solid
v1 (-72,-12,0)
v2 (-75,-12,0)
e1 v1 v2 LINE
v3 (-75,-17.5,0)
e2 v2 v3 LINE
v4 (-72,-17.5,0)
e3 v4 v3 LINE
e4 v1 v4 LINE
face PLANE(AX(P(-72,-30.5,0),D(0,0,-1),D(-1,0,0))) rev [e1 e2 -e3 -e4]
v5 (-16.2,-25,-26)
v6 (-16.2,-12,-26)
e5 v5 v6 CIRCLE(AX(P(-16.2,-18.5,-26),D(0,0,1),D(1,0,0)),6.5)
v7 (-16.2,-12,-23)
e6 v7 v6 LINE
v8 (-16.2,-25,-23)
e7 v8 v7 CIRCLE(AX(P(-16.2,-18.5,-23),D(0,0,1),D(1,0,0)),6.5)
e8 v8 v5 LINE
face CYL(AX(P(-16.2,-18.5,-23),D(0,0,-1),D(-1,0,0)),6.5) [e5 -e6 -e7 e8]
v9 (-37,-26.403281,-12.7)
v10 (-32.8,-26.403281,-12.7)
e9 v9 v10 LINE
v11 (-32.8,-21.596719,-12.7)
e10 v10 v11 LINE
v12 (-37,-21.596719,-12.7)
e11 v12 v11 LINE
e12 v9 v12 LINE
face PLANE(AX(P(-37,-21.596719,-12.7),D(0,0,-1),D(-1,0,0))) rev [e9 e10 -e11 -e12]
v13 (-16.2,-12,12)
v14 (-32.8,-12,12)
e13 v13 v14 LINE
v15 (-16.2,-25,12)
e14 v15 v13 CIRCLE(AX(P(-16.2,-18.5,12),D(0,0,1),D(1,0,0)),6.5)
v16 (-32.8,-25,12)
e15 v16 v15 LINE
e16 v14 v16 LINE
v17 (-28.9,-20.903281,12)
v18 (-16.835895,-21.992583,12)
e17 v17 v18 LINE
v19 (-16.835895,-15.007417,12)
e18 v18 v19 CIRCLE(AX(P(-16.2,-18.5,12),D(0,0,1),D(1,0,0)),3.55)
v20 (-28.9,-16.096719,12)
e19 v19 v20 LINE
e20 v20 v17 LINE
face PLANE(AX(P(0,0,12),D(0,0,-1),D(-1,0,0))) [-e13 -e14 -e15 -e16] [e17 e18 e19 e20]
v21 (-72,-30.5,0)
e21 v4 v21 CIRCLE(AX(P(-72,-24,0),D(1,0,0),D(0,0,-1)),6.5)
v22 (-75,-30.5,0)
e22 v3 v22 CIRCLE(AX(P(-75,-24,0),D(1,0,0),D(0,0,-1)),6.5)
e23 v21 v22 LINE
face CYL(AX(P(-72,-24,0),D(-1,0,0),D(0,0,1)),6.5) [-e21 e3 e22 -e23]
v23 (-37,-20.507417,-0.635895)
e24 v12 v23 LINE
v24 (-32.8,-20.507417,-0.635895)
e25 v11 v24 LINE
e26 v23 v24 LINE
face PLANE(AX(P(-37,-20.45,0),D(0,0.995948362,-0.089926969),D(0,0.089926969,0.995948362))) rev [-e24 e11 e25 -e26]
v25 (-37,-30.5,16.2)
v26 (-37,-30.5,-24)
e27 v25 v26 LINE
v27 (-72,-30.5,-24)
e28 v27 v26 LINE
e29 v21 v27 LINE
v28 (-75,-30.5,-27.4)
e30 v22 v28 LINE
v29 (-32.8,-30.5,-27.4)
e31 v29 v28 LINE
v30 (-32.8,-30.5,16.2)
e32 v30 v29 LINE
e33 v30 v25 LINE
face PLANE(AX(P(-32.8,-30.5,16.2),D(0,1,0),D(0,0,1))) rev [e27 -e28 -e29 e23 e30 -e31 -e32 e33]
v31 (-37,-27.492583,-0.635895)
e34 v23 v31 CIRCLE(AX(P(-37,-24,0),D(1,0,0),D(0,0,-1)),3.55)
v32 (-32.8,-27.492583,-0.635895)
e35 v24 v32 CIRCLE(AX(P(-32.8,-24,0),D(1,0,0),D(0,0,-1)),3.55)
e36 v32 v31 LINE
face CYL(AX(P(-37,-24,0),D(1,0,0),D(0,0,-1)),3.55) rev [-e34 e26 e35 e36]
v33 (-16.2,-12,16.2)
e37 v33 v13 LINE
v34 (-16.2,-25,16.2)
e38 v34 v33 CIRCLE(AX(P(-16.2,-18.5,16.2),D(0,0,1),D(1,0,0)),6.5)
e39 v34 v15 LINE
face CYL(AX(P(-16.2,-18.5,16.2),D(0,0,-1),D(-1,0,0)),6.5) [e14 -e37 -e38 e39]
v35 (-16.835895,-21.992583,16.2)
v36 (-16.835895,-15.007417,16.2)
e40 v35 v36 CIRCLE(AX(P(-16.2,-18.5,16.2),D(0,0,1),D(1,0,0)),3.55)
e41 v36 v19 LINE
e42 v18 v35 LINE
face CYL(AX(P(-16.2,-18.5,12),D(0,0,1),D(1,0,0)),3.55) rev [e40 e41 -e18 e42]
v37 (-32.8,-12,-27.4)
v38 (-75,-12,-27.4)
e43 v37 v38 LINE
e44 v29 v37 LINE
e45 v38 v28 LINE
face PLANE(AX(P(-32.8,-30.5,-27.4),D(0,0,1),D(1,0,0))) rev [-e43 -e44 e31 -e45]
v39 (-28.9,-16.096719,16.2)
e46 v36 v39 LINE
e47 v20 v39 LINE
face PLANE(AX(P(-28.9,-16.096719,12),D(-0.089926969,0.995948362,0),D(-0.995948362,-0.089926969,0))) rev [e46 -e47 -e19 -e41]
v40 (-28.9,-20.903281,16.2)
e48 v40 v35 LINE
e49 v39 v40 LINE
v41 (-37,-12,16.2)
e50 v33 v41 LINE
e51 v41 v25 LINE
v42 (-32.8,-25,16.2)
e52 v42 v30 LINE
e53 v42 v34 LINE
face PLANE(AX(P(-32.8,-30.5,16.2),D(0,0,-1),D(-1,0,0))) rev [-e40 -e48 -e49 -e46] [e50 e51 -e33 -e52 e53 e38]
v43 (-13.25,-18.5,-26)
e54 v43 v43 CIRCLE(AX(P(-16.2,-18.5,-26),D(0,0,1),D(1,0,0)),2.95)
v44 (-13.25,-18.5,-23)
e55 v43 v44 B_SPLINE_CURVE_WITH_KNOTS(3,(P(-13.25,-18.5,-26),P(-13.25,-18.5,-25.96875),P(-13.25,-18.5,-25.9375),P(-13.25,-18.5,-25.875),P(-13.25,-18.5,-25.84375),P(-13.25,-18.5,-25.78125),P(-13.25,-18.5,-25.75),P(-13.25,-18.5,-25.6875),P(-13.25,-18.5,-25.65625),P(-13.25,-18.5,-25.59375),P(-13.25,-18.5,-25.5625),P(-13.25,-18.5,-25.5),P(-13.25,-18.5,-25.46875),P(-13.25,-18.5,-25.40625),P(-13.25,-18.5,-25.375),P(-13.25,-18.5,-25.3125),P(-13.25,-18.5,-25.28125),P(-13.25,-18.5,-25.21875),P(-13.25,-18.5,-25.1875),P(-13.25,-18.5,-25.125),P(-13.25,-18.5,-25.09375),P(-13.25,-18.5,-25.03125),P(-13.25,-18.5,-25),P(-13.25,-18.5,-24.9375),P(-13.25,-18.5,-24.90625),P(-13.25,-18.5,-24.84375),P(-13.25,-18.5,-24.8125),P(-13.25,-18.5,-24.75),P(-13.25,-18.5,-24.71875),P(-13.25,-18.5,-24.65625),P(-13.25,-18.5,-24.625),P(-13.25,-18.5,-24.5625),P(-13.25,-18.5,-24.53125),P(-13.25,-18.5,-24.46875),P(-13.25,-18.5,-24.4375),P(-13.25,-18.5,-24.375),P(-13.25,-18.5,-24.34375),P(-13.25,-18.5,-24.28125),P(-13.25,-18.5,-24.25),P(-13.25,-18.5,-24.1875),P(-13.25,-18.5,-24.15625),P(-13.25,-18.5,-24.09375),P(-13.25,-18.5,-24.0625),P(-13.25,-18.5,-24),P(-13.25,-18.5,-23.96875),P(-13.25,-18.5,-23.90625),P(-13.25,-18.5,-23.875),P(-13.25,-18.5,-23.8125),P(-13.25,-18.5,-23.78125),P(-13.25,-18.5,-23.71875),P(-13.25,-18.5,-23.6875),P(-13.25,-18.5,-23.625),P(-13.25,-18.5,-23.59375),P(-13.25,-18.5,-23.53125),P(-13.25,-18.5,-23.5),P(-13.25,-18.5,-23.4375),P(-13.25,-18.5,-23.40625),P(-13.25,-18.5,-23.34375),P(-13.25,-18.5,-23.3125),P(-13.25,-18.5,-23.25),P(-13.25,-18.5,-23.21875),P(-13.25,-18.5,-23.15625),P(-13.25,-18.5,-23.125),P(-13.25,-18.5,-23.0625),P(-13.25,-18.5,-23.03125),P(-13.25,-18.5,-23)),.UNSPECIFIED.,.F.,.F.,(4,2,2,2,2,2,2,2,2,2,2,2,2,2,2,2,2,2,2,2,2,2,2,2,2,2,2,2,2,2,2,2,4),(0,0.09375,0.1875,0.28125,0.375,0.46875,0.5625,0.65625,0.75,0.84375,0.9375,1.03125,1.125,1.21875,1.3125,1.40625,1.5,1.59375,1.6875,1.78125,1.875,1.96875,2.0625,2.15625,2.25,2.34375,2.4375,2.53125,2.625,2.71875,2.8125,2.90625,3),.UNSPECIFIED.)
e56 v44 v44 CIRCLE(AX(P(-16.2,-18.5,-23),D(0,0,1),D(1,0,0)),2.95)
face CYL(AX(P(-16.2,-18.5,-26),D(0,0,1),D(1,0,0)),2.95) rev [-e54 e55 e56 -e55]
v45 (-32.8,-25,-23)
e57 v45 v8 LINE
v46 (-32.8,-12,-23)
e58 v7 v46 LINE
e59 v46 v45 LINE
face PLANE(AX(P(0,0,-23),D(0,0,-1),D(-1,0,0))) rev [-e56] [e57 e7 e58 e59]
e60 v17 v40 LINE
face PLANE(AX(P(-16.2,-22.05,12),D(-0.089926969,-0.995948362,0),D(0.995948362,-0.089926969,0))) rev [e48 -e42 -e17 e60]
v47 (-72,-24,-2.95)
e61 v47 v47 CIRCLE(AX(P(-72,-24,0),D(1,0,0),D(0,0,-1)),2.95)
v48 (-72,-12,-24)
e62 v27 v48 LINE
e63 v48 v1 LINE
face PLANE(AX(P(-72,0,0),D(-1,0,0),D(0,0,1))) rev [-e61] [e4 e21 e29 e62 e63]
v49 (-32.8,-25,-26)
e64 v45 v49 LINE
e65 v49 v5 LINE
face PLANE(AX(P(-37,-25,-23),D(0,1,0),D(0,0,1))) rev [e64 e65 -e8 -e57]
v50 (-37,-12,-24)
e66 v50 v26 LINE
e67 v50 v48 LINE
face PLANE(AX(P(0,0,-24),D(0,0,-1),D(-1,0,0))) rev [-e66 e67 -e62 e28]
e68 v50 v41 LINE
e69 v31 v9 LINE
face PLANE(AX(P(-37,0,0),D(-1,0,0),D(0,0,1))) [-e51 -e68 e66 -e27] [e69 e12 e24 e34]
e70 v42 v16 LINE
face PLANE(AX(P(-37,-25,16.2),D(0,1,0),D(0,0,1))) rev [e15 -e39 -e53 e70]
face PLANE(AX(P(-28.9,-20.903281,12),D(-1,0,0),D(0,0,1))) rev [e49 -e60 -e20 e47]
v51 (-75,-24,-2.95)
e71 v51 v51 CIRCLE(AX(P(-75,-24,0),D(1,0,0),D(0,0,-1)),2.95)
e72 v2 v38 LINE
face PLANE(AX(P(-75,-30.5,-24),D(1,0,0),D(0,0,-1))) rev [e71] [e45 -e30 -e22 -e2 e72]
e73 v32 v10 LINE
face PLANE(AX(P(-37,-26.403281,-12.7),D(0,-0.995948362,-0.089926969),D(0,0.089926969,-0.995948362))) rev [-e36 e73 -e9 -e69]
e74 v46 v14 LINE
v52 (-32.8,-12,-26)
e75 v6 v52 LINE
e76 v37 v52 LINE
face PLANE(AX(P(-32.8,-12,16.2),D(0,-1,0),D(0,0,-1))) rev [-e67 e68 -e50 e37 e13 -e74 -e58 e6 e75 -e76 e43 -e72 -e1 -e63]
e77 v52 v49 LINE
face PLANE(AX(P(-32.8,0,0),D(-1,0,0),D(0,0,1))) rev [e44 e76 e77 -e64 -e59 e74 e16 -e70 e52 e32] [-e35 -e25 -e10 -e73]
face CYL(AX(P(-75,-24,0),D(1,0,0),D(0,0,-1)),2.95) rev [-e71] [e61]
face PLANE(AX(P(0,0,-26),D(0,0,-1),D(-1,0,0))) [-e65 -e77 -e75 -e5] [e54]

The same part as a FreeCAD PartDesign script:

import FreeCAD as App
import Part
import Sketcher


def add_polygon(sketch, points):
    """Adds a closed chain of lines whose ends are joined by coincident constraints."""
    first, n = sketch.GeometryCount, len(points)
    for a, b in zip(points, points[1:] + points[:1]):
        sketch.addGeometry(Part.LineSegment(App.Vector(*a, 0), App.Vector(*b, 0)), False)
    for i in range(n):
        sketch.addConstraint(Sketcher.Constraint("Coincident", first + i, 2, first + (i + 1) % n, 1))

doc = App.newDocument("Part")
body = doc.addObject("PartDesign::Body", "Body")

# Sketch on YZ plane
sketch1 = doc.addObject("Sketcher::SketchObject", "Sketch")
body.addObject(sketch1)
sketch1.AttachmentSupport = (doc.YZ_Plane, [""])
sketch1.MapMode = "FlatFace"
sketch1.AttachmentOffset = App.Placement(App.Vector(0, 0, -34.9), App.Rotation())
add_polygon(sketch1, [(-12, 16), (-30, 16), (-30, -27), (-12, -27)])  # lines 0-3
sketch1.addConstraint(Sketcher.Constraint("Horizontal", 0))
sketch1.addConstraint(Sketcher.Constraint("Vertical", 1))
sketch1.addConstraint(Sketcher.Constraint("Horizontal", 2))
sketch1.addConstraint(Sketcher.Constraint("Vertical", 3))
sketch1.addConstraint(Sketcher.Constraint("DistanceX", 0, 2, 0, 1, 18.5))
sketch1.addConstraint(Sketcher.Constraint("DistanceY", 1, 2, 1, 1, 43.6))
sketch1.addConstraint(Sketcher.Constraint("DistanceX", 2, 2, -1, 1, 12.0))
sketch1.addConstraint(Sketcher.Constraint("DistanceY", -1, 1, 0, 2, 16.2))
pad1 = doc.addObject("PartDesign::Pad", "Pad")
body.addObject(pad1)
pad1.Profile = sketch1
pad1.Length = 4.2
pad1.Midplane = True

# Sketch on YZ plane
sketch2 = doc.addObject("Sketcher::SketchObject", "Sketch001")
body.addObject(sketch2)
sketch2.AttachmentSupport = (doc.YZ_Plane, [""])
sketch2.MapMode = "FlatFace"
sketch2.AttachmentOffset = App.Placement(App.Vector(0, 0, -34.9), App.Rotation())
sketch2.addGeometry(Part.Circle(App.Vector(-24, 0, 0), App.Vector(0, 0, 1), 3.5), False)
sketch2.addConstraint(Sketcher.Constraint("PointOnObject", 0, 3, -1))
sketch2.addConstraint(Sketcher.Constraint("Diameter", 0, 7.1))
sketch2.addConstraint(Sketcher.Constraint("DistanceX", 0, 3, -1, 1, 24.0))
pocket1 = doc.addObject("PartDesign::Pocket", "Pocket")
body.addObject(pocket1)
pocket1.Profile = sketch2
pocket1.Length = 4.2
pocket1.Midplane = True

# Sketch on YZ plane
sketch3 = doc.addObject("Sketcher::SketchObject", "Sketch002")
body.addObject(sketch3)
sketch3.AttachmentSupport = (doc.YZ_Plane, [""])
sketch3.MapMode = "FlatFace"
sketch3.AttachmentOffset = App.Placement(App.Vector(0, 0, -34.9), App.Rotation())
add_polygon(sketch3, [(-21.6, -12.7), (-20.4, 0), (-27.6, 0), (-26.4, -12.7)])  # lines 0-3
sketch3.addConstraint(Sketcher.Constraint("Horizontal", 1))
sketch3.addConstraint(Sketcher.Constraint("Horizontal", 3))
sketch3.addConstraint(Sketcher.Constraint("PointOnObject", 0, 2, -1))
sketch3.addConstraint(Sketcher.Constraint("Equal", 0, 2))
sketch3.addConstraint(Sketcher.Constraint("DistanceX", 1, 2, 1, 1, 7.1))
sketch3.addConstraint(Sketcher.Constraint("DistanceY", 2, 2, -1, 1, 12.7))
sketch3.addConstraint(Sketcher.Constraint("DistanceX", 0, 2, -1, 1, 20.45))
sketch3.addConstraint(Sketcher.Constraint("DistanceX", 3, 1, 3, 2, 4.806563))
pocket2 = doc.addObject("PartDesign::Pocket", "Pocket001")
body.addObject(pocket2)
pocket2.Profile = sketch3
pocket2.Length = 4.2
pocket2.Midplane = True
body2 = doc.addObject("PartDesign::Body", "Body001")

# Sketch on XY plane
sketch4 = doc.addObject("Sketcher::SketchObject", "Sketch003")
body2.addObject(sketch4)
sketch4.AttachmentSupport = (doc.getObject("XY_Plane001"), [""])
sketch4.MapMode = "FlatFace"
sketch4.AttachmentOffset = App.Placement(App.Vector(0, 0, 14.1), App.Rotation())
sketch4.addGeometry(Part.Circle(App.Vector(-16, -18, 0), App.Vector(0, 0, 1), 6), False)
sketch4.addConstraint(Sketcher.Constraint("Diameter", 0, 13.0))
sketch4.addConstraint(Sketcher.Constraint("DistanceX", 0, 3, -1, 1, 16.2))
sketch4.addConstraint(Sketcher.Constraint("DistanceY", 0, 3, -1, 1, 18.5))
pad2 = doc.addObject("PartDesign::Pad", "Pad001")
body2.addObject(pad2)
pad2.Profile = sketch4
pad2.Length = 4.2
pad2.Midplane = True
body.AllowCompound = True
doc.recompute()

boolean = doc.addObject("PartDesign::Boolean", "Boolean")
body.addObject(boolean)
boolean.Type = "Fuse"
boolean.addObjects([body2])

# Sketch on XY plane
sketch5 = doc.addObject("Sketcher::SketchObject", "Sketch004")
body.addObject(sketch5)
sketch5.AttachmentSupport = (doc.XY_Plane, [""])
sketch5.MapMode = "FlatFace"
sketch5.AttachmentOffset = App.Placement(App.Vector(0, 0, 14.1), App.Rotation())
add_polygon(sketch5, [(-37, -12), (-37, -25), (-16, -25), (-16, -12)])  # lines 0-3
sketch5.addConstraint(Sketcher.Constraint("Vertical", 0))
sketch5.addConstraint(Sketcher.Constraint("Horizontal", 1))
sketch5.addConstraint(Sketcher.Constraint("Vertical", 2))
sketch5.addConstraint(Sketcher.Constraint("Horizontal", 3))
sketch5.addConstraint(Sketcher.Constraint("DistanceY", 0, 2, 0, 1, 13.0))
sketch5.addConstraint(Sketcher.Constraint("DistanceX", 1, 1, 1, 2, 20.8))
sketch5.addConstraint(Sketcher.Constraint("DistanceX", 0, 2, -1, 1, 37.0))
sketch5.addConstraint(Sketcher.Constraint("DistanceY", 0, 2, -1, 1, 25.0))
pad3 = doc.addObject("PartDesign::Pad", "Pad002")
body.addObject(pad3)
pad3.Profile = sketch5
pad3.Length = 4.2
pad3.Midplane = True

# Sketch on XY plane
sketch6 = doc.addObject("Sketcher::SketchObject", "Sketch005")
body.addObject(sketch6)
sketch6.AttachmentSupport = (doc.XY_Plane, [""])
sketch6.MapMode = "FlatFace"
sketch6.AttachmentOffset = App.Placement(App.Vector(0, 0, 14.1), App.Rotation())
sketch6.addGeometry(Part.Circle(App.Vector(-16.2, -18.5, 0), App.Vector(0, 0, 1), 3.5), False)
sketch6.addConstraint(Sketcher.Constraint("Diameter", 0, 7.1))
sketch6.addConstraint(Sketcher.Constraint("DistanceX", 0, 3, -1, 1, 16.2))
sketch6.addConstraint(Sketcher.Constraint("DistanceY", 0, 3, -1, 1, 18.5))
pocket3 = doc.addObject("PartDesign::Pocket", "Pocket002")
body.addObject(pocket3)
pocket3.Profile = sketch6
pocket3.Length = 4.2
pocket3.Midplane = True

# Sketch on XY plane
sketch7 = doc.addObject("Sketcher::SketchObject", "Sketch006")
body.addObject(sketch7)
sketch7.AttachmentSupport = (doc.XY_Plane, [""])
sketch7.MapMode = "FlatFace"
sketch7.AttachmentOffset = App.Placement(App.Vector(0, 0, 14.1), App.Rotation())
add_polygon(sketch7, [(-28.9, -20.9), (-16.2, -22.1), (-16.2, -14.9), (-28.9, -16.1)])  # lines 0-3
sketch7.addConstraint(Sketcher.Constraint("Vertical", 1))
sketch7.addConstraint(Sketcher.Constraint("Vertical", 3))
sketch7.addConstraint(Sketcher.Constraint("Equal", 0, 2))
sketch7.addConstraint(Sketcher.Constraint("DistanceY", 1, 1, 1, 2, 7.1))
sketch7.addConstraint(Sketcher.Constraint("DistanceX", 0, 2, -1, 1, 16.2))
sketch7.addConstraint(Sketcher.Constraint("DistanceX", 2, 2, -1, 1, 28.9))
sketch7.addConstraint(Sketcher.Constraint("DistanceY", 0, 2, -1, 1, 22.05))
sketch7.addConstraint(Sketcher.Constraint("DistanceY", 3, 2, 3, 1, 4.806563))
pocket4 = doc.addObject("PartDesign::Pocket", "Pocket003")
body.addObject(pocket4)
pocket4.Profile = sketch7
pocket4.Length = 4.2
pocket4.Midplane = True
body3 = doc.addObject("PartDesign::Body", "Body002")

# Sketch on XY plane
sketch8 = doc.addObject("Sketcher::SketchObject", "Sketch007")
body3.addObject(sketch8)
sketch8.AttachmentSupport = (doc.getObject("XY_Plane002"), [""])
sketch8.MapMode = "FlatFace"
sketch8.AttachmentOffset = App.Placement(App.Vector(0, 0, -24.5), App.Rotation())
sketch8.addGeometry(Part.Circle(App.Vector(-16, -18, 0), App.Vector(0, 0, 1), 6), False)
sketch8.addConstraint(Sketcher.Constraint("Diameter", 0, 13.0))
sketch8.addConstraint(Sketcher.Constraint("DistanceX", 0, 3, -1, 1, 16.2))
sketch8.addConstraint(Sketcher.Constraint("DistanceY", 0, 3, -1, 1, 18.5))
pad4 = doc.addObject("PartDesign::Pad", "Pad003")
body3.addObject(pad4)
pad4.Profile = sketch8
pad4.Length = 3
pad4.Midplane = True
body.AllowCompound = True
doc.recompute()

boolean2 = doc.addObject("PartDesign::Boolean", "Boolean001")
body.addObject(boolean2)
boolean2.Type = "Fuse"
boolean2.addObjects([body3])

# Sketch on XY plane
sketch9 = doc.addObject("Sketcher::SketchObject", "Sketch008")
body.addObject(sketch9)
sketch9.AttachmentSupport = (doc.XY_Plane, [""])
sketch9.MapMode = "FlatFace"
sketch9.AttachmentOffset = App.Placement(App.Vector(0, 0, -24.5), App.Rotation())
add_polygon(sketch9, [(-37, -12), (-37, -25), (-16, -25), (-16, -12)])  # lines 0-3
sketch9.addConstraint(Sketcher.Constraint("Vertical", 0))
sketch9.addConstraint(Sketcher.Constraint("Horizontal", 1))
sketch9.addConstraint(Sketcher.Constraint("Vertical", 2))
sketch9.addConstraint(Sketcher.Constraint("Horizontal", 3))
sketch9.addConstraint(Sketcher.Constraint("DistanceY", 0, 2, 0, 1, 13.0))
sketch9.addConstraint(Sketcher.Constraint("DistanceX", 1, 1, 1, 2, 20.8))
sketch9.addConstraint(Sketcher.Constraint("DistanceX", 0, 2, -1, 1, 37.0))
sketch9.addConstraint(Sketcher.Constraint("DistanceY", 0, 2, -1, 1, 25.0))
pad5 = doc.addObject("PartDesign::Pad", "Pad004")
body.addObject(pad5)
pad5.Profile = sketch9
pad5.Length = 3
pad5.Midplane = True

# Sketch on XY plane
sketch10 = doc.addObject("Sketcher::SketchObject", "Sketch009")
body.addObject(sketch10)
sketch10.AttachmentSupport = (doc.XY_Plane, [""])
sketch10.MapMode = "FlatFace"
sketch10.AttachmentOffset = App.Placement(App.Vector(0, 0, -24.5), App.Rotation())
sketch10.addGeometry(Part.Circle(App.Vector(-16.2, -18.5, 0), App.Vector(0, 0, 1), 3), False)
sketch10.addConstraint(Sketcher.Constraint("Diameter", 0, 5.9))
sketch10.addConstraint(Sketcher.Constraint("DistanceX", 0, 3, -1, 1, 16.2))
sketch10.addConstraint(Sketcher.Constraint("DistanceY", 0, 3, -1, 1, 18.5))
pocket5 = doc.addObject("PartDesign::Pocket", "Pocket004")
body.addObject(pocket5)
pocket5.Profile = sketch10
pocket5.Length = 3
pocket5.Midplane = True

# Sketch on XY plane
sketch11 = doc.addObject("Sketcher::SketchObject", "Sketch010")
body.addObject(sketch11)
sketch11.AttachmentSupport = (doc.XY_Plane, [""])
sketch11.MapMode = "FlatFace"
sketch11.AttachmentOffset = App.Placement(App.Vector(0, 0, -25.7), App.Rotation())
add_polygon(sketch11, [(-75, -12), (-75, -30), (-33, -30), (-33, -12)])  # lines 0-3
sketch11.addConstraint(Sketcher.Constraint("Vertical", 0))
sketch11.addConstraint(Sketcher.Constraint("Horizontal", 1))
sketch11.addConstraint(Sketcher.Constraint("Vertical", 2))
sketch11.addConstraint(Sketcher.Constraint("Horizontal", 3))
sketch11.addConstraint(Sketcher.Constraint("DistanceX", 1, 1, 1, 2, 42.2))
sketch11.addConstraint(Sketcher.Constraint("DistanceY", 0, 2, 0, 1, 18.5))
sketch11.addConstraint(Sketcher.Constraint("DistanceX", 0, 2, -1, 1, 75.0))
sketch11.addConstraint(Sketcher.Constraint("DistanceY", 2, 2, -1, 1, 12.0))
pad6 = doc.addObject("PartDesign::Pad", "Pad005")
body.addObject(pad6)
pad6.Profile = sketch11
pad6.Length = 3.4
pad6.Midplane = True
body4 = doc.addObject("PartDesign::Body", "Body003")

# Sketch on YZ plane
sketch12 = doc.addObject("Sketcher::SketchObject", "Sketch011")
body4.addObject(sketch12)
sketch12.AttachmentSupport = (doc.getObject("YZ_Plane003"), [""])
sketch12.MapMode = "FlatFace"
sketch12.AttachmentOffset = App.Placement(App.Vector(0, 0, -73.5), App.Rotation())
sketch12.addGeometry(Part.Circle(App.Vector(-24, 0, 0), App.Vector(0, 0, 1), 6), False)
sketch12.addConstraint(Sketcher.Constraint("PointOnObject", 0, 3, -1))
sketch12.addConstraint(Sketcher.Constraint("Diameter", 0, 13.0))
sketch12.addConstraint(Sketcher.Constraint("DistanceX", 0, 3, -1, 1, 24.0))
pad7 = doc.addObject("PartDesign::Pad", "Pad006")
body4.addObject(pad7)
pad7.Profile = sketch12
pad7.Length = 3
pad7.Midplane = True
body.AllowCompound = True
doc.recompute()

boolean3 = doc.addObject("PartDesign::Boolean", "Boolean002")
body.addObject(boolean3)
boolean3.Type = "Fuse"
boolean3.addObjects([body4])

# Sketch on YZ plane
sketch13 = doc.addObject("Sketcher::SketchObject", "Sketch012")
body.addObject(sketch13)
sketch13.AttachmentSupport = (doc.YZ_Plane, [""])
sketch13.MapMode = "FlatFace"
sketch13.AttachmentOffset = App.Placement(App.Vector(0, 0, -73.5), App.Rotation())
add_polygon(sketch13, [(-12, 0), (-30, 0), (-30, -27), (-12, -27)])  # lines 0-3
sketch13.addConstraint(Sketcher.Constraint("Horizontal", 0))
sketch13.addConstraint(Sketcher.Constraint("Vertical", 1))
sketch13.addConstraint(Sketcher.Constraint("Horizontal", 2))
sketch13.addConstraint(Sketcher.Constraint("Vertical", 3))
sketch13.addConstraint(Sketcher.Constraint("PointOnObject", 0, 2, -1))
sketch13.addConstraint(Sketcher.Constraint("DistanceX", 0, 2, 0, 1, 18.5))
sketch13.addConstraint(Sketcher.Constraint("DistanceY", 1, 2, 1, 1, 27.4))
sketch13.addConstraint(Sketcher.Constraint("DistanceX", 2, 2, -1, 1, 12.0))
pad8 = doc.addObject("PartDesign::Pad", "Pad007")
body.addObject(pad8)
pad8.Profile = sketch13
pad8.Length = 3
pad8.Midplane = True

# Sketch on YZ plane
sketch14 = doc.addObject("Sketcher::SketchObject", "Sketch013")
body.addObject(sketch14)
sketch14.AttachmentSupport = (doc.YZ_Plane, [""])
sketch14.MapMode = "FlatFace"
sketch14.AttachmentOffset = App.Placement(App.Vector(0, 0, -73.5), App.Rotation())
sketch14.addGeometry(Part.Circle(App.Vector(-24, 0, 0), App.Vector(0, 0, 1), 3), False)
sketch14.addConstraint(Sketcher.Constraint("PointOnObject", 0, 3, -1))
sketch14.addConstraint(Sketcher.Constraint("Diameter", 0, 5.9))
sketch14.addConstraint(Sketcher.Constraint("DistanceX", 0, 3, -1, 1, 24.0))
pocket6 = doc.addObject("PartDesign::Pocket", "Pocket005")
body.addObject(pocket6)
pocket6.Profile = sketch14
pocket6.Length = 3
pocket6.Midplane = True

doc.recompute()
